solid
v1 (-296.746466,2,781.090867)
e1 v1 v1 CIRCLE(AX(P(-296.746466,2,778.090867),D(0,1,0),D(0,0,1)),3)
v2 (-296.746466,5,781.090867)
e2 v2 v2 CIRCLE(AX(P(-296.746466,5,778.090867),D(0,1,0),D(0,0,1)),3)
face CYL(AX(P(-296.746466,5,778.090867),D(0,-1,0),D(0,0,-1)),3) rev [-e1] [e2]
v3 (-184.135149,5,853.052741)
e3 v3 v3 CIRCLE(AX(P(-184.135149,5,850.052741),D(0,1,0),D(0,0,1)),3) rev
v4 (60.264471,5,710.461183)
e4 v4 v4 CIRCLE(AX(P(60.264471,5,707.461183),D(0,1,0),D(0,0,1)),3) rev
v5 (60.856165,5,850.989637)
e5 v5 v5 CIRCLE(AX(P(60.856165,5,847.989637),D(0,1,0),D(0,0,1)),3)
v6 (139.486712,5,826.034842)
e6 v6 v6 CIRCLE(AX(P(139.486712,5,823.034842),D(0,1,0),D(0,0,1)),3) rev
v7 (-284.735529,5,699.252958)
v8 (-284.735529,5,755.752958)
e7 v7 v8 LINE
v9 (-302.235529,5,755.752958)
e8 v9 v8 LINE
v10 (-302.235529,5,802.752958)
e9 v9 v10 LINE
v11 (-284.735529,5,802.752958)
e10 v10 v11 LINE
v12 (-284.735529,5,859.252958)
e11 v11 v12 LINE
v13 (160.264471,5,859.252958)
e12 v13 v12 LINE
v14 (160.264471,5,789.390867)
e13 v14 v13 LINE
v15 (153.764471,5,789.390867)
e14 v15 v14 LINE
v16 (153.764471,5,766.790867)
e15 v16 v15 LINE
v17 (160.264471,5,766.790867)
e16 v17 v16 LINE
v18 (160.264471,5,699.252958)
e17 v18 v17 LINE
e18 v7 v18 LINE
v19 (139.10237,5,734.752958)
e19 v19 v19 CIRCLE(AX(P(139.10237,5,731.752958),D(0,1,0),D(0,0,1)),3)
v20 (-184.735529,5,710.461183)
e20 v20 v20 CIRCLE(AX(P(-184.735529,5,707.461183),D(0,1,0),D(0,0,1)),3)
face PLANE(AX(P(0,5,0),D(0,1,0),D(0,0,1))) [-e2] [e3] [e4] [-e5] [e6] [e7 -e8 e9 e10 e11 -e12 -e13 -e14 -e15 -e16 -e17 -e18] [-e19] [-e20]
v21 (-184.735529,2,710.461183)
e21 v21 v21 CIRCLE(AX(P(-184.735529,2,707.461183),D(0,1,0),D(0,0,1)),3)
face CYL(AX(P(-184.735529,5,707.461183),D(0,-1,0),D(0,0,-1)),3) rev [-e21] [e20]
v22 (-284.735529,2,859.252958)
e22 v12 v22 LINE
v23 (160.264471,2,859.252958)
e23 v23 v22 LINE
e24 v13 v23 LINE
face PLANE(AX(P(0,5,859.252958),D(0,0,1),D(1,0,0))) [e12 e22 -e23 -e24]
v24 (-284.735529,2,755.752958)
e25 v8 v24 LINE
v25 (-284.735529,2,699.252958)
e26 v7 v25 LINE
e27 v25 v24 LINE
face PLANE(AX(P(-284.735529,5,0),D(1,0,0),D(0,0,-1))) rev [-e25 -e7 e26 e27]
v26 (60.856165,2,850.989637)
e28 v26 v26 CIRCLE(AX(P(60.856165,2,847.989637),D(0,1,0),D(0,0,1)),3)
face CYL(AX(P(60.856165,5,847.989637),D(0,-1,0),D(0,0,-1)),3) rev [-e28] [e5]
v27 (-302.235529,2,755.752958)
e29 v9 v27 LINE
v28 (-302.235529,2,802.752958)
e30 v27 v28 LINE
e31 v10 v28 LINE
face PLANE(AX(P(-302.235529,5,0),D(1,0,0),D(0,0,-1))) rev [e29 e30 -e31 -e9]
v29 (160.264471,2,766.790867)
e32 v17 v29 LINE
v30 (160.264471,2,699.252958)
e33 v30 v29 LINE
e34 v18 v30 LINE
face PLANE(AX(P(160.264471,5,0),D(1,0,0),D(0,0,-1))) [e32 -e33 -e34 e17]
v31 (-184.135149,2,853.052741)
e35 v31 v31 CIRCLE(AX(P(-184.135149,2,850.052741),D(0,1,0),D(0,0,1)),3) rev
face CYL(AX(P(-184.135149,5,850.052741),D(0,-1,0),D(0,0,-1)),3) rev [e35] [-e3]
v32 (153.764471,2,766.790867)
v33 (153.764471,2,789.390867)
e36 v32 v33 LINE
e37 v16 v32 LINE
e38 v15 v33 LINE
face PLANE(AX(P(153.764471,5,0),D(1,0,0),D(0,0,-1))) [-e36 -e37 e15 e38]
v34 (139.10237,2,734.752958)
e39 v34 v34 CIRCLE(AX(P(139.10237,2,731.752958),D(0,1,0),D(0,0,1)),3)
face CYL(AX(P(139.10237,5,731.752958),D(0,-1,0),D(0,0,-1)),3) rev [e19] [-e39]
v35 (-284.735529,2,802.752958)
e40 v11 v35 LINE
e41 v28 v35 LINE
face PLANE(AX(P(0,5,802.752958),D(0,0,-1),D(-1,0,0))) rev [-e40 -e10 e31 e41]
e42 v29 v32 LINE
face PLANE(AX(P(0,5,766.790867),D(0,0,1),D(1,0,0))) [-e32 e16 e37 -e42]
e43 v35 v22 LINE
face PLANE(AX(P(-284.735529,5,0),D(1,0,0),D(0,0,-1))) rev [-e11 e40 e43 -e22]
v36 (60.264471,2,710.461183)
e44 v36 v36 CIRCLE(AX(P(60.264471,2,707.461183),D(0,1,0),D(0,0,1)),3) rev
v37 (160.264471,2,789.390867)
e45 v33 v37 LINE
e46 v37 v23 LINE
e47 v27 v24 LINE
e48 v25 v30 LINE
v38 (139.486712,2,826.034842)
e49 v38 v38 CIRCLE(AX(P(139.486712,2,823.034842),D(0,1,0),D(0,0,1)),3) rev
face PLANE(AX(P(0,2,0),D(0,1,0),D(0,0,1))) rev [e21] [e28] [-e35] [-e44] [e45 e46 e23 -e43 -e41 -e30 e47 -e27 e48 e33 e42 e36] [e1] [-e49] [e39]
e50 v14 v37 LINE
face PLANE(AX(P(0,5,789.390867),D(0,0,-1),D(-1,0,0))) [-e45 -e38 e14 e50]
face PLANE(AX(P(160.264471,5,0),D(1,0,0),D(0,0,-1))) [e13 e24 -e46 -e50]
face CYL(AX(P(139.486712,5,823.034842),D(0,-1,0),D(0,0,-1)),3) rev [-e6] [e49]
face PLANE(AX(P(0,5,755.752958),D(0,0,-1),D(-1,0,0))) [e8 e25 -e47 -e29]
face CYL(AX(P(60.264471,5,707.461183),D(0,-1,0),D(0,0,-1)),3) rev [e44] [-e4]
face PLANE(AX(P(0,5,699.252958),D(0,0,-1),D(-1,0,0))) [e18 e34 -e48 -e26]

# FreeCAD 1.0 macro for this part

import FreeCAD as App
import Part
import Sketcher

V = App.Vector

doc = App.newDocument("Part")
body = doc.addObject("PartDesign::Body", "Body")

# Sketch on XZ plane
sketch1 = doc.addObject("Sketcher::SketchObject", "Sketch")
body.addObject(sketch1)
sketch1.AttachmentSupport = (doc.XZ_Plane, [""])
sketch1.MapMode = "FlatFace"
sketch1.AttachmentOffset = App.Placement(V(0, 0, -2), App.Rotation())
sketch1.addGeometry([
    Part.LineSegment(V(-284.7, 755.8, 0), V(-302.2, 755.8, 0)),  # 0
    Part.LineSegment(V(-302.2, 755.8, 0), V(-302.2, 802.8, 0)),  # 1
    Part.LineSegment(V(-302.2, 802.8, 0), V(-284.7, 802.8, 0)),  # 2
    Part.LineSegment(V(-284.7, 802.8, 0), V(-284.7, 859.3, 0)),  # 3
    Part.LineSegment(V(-284.7, 859.3, 0), V(160.3, 859.3, 0)),  # 4
    Part.LineSegment(V(160.3, 859.3, 0), V(160.3, 789.4, 0)),  # 5
    Part.LineSegment(V(160.3, 789.4, 0), V(153.8, 789.4, 0)),  # 6
    Part.LineSegment(V(153.8, 789.4, 0), V(153.8, 766.8, 0)),  # 7
    Part.LineSegment(V(153.8, 766.8, 0), V(160.3, 766.8, 0)),  # 8
    Part.LineSegment(V(160.3, 766.8, 0), V(160.3, 699.3, 0)),  # 9
    Part.LineSegment(V(160.3, 699.3, 0), V(-284.7, 699.3, 0)),  # 10
    Part.LineSegment(V(-284.7, 699.3, 0), V(-284.7, 755.8, 0)),  # 11
    Part.Circle(V(60.9, 848, 0), V(0, 0, 1), 3),  # 12
    Part.Circle(V(139.5, 823, 0), V(0, 0, 1), 3),  # 13
    Part.Circle(V(-184.1, 850.1, 0), V(0, 0, 1), 3),  # 14
    Part.Circle(V(139.1, 731.8, 0), V(0, 0, 1), 3),  # 15
    Part.Circle(V(60.3, 707.5, 0), V(0, 0, 1), 3),  # 16
    Part.Circle(V(-296.7, 778.1, 0), V(0, 0, 1), 3),  # 17
    Part.Circle(V(-184.7, 707.5, 0), V(0, 0, 1), 3),  # 18
], False)
sketch1.addConstraint([
    Sketcher.Constraint("Coincident", 0, 2, 1, 1),
    Sketcher.Constraint("Coincident", 1, 2, 2, 1),
    Sketcher.Constraint("Coincident", 2, 2, 3, 1),
    Sketcher.Constraint("Coincident", 3, 2, 4, 1),
    Sketcher.Constraint("Coincident", 4, 2, 5, 1),
    Sketcher.Constraint("Coincident", 5, 2, 6, 1),
    Sketcher.Constraint("Coincident", 6, 2, 7, 1),
    Sketcher.Constraint("Coincident", 7, 2, 8, 1),
    Sketcher.Constraint("Coincident", 8, 2, 9, 1),
    Sketcher.Constraint("Coincident", 9, 2, 10, 1),
    Sketcher.Constraint("Coincident", 10, 2, 11, 1),
    Sketcher.Constraint("Coincident", 11, 2, 0, 1),
    Sketcher.Constraint("Horizontal", 0),
    Sketcher.Constraint("Vertical", 1),
    Sketcher.Constraint("Horizontal", 2),
    Sketcher.Constraint("Vertical", 3),
    Sketcher.Constraint("Horizontal", 4),
    Sketcher.Constraint("Vertical", 5),
    Sketcher.Constraint("Horizontal", 6),
    Sketcher.Constraint("Vertical", 7),
    Sketcher.Constraint("Horizontal", 8),
    Sketcher.Constraint("Vertical", 9),
    Sketcher.Constraint("Horizontal", 10),
    Sketcher.Constraint("Vertical", 11),
    Sketcher.Constraint("Equal", 12, 13),
    Sketcher.Constraint("Equal", 13, 14),
    Sketcher.Constraint("Equal", 14, 15),
    Sketcher.Constraint("Equal", 15, 16),
    Sketcher.Constraint("Equal", 16, 17),
    Sketcher.Constraint("Equal", 17, 18),
    Sketcher.Constraint("Horizontal", 16, 3, 18, 3),
    Sketcher.Constraint("Vertical", 5, 2, 8, 2),
    Sketcher.Constraint("Vertical", 3, 2, 10, 2),
    Sketcher.Constraint("Equal", 3, 11),
    Sketcher.Constraint("Diameter", 12, 6.0),
    Sketcher.Constraint("DistanceX", 4, 1, 4, 2, 445.0),
    Sketcher.Constraint("DistanceY", 1, 1, 1, 2, 47.0),
    Sketcher.Constraint("DistanceX", 0, 2, 0, 1, 17.5),
    Sketcher.Constraint("DistanceX", 6, 2, 6, 1, 6.5),
    Sketcher.Constraint("DistanceY", 3, 1, 3, 2, 56.5),
    Sketcher.Constraint("DistanceY", 7, 2, 7, 1, 22.6),
    Sketcher.Constraint("DistanceX", 18, 3, 16, 3, 245.0),
    Sketcher.Constraint("DistanceX", 2, 2, 18, 3, 100.0),
    Sketcher.Constraint("DistanceY", 15, 3, 4, 2, 127.5),
    Sketcher.Constraint("DistanceY", 5, 2, 5, 1, 69.862091),
    Sketcher.Constraint("DistanceY", 13, 3, 14, 3, 27.017899),
    Sketcher.Constraint("DistanceX", 16, 3, 15, 3, 78.837899),
    Sketcher.Constraint("DistanceX", -1, 1, 13, 3, 139.486712),
    Sketcher.Constraint("DistanceY", -1, 1, 13, 3, 823.034842),
    Sketcher.Constraint("DistanceX", 14, 3, -1, 1, 184.135149),
    Sketcher.Constraint("DistanceX", -1, 1, 15, 3, 139.10237),
    Sketcher.Constraint("DistanceY", -1, 1, 15, 3, 731.752958),
    Sketcher.Constraint("DistanceY", 15, 3, 12, 3, 116.236679),
    Sketcher.Constraint("DistanceY", 16, 3, 13, 3, 115.573659),
    Sketcher.Constraint("DistanceX", 17, 3, 12, 3, 357.602631),
    Sketcher.Constraint("DistanceY", 17, 3, 12, 3, 69.89877),
    Sketcher.Constraint("DistanceX", 17, 3, 13, 3, 436.233178),
])
pad1 = doc.addObject("PartDesign::Pad", "Pad")
body.addObject(pad1)
pad1.Profile = sketch1
pad1.Length = 3
pad1.Reversed = True

doc.recompute()
